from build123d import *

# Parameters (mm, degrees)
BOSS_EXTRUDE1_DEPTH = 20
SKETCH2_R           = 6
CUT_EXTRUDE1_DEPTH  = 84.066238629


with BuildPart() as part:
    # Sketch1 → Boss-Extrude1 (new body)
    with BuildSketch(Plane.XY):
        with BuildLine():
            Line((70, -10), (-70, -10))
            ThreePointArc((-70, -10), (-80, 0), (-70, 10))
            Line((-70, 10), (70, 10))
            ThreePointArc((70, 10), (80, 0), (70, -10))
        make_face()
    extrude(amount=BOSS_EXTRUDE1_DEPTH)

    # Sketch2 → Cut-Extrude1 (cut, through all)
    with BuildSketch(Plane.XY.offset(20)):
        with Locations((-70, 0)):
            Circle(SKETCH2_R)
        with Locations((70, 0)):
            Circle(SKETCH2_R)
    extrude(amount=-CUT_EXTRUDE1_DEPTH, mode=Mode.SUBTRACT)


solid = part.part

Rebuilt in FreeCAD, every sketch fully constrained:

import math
import FreeCAD as App
import Part
import Sketcher
Q = App.Units.Quantity

doc = App.newDocument("Part")
body = doc.addObject("PartDesign::Body", "Body")

# Sketch on XY plane
sketch1 = body.newObject("Sketcher::SketchObject", "Sketch")
sketch1.AttachmentSupport = (doc.getObject("XY_Plane"), [""])
sketch1.MapMode = "FlatFace"
sketch1.addGeometry([
    Part.LineSegment(App.Vector(-70, -10, 0), App.Vector(70, -10, 0)),
    Part.ArcOfCircle(Part.Circle(App.Vector(70, 0, 0), App.Vector(0, 0, 1), 10), math.radians(-90), math.radians(90)),
    Part.LineSegment(App.Vector(70, 10, 0), App.Vector(-70, 10, 0)),
    Part.ArcOfCircle(Part.Circle(App.Vector(-70, 0, 0), App.Vector(0, 0, 1), 10), math.radians(90), math.radians(270)),
], False)
sketch1.addConstraint([
    Sketcher.Constraint("Tangent", 0, 2, 1, 1),
    Sketcher.Constraint("Tangent", 1, 2, 2, 1),
    Sketcher.Constraint("Tangent", 2, 2, 3, 1),
    Sketcher.Constraint("Tangent", 3, 2, 0, 1),
    Sketcher.Constraint("Horizontal", 0),
    Sketcher.Constraint("Horizontal", 2),
    Sketcher.Constraint("Symmetric", 1, 3, 3, 3, -1, 1),
    Sketcher.Constraint("Radius", 1, Q("10 mm")),
    Sketcher.Constraint("DistanceX", 0, 1, 0, 2, Q("140 mm")),
])
pad1 = body.newObject("PartDesign::Pad", "Pad")
pad1.Profile = sketch1
pad1.Length = 20

# Sketch on XY plane
sketch2 = body.newObject("Sketcher::SketchObject", "Sketch001")
sketch2.AttachmentSupport = (doc.getObject("XY_Plane"), [""])
sketch2.MapMode = "FlatFace"
sketch2.AttachmentOffset = App.Placement(App.Vector(0, 0, 20), App.Rotation())
sketch2.addGeometry([
    Part.Circle(App.Vector(-70, 0, 0), App.Vector(0, 0, 1), 6),
    Part.Circle(App.Vector(70, 0, 0), App.Vector(0, 0, 1), 6),
], False)
sketch2.addConstraint([
    Sketcher.Constraint("Equal", 0, 1),
    Sketcher.Constraint("Symmetric", 0, 3, 1, 3, -1, 1),
    Sketcher.Constraint("PointOnObject", 0, 3, -1),
    Sketcher.Constraint("Diameter", 0, Q("12 mm")),
    Sketcher.Constraint("DistanceX", 0, 3, -1, 1, Q("70 mm")),
])
pocket1 = body.newObject("PartDesign::Pocket", "Pocket")
pocket1.Profile = sketch2
pocket1.Type = "ThroughAll"

doc.recompute()
